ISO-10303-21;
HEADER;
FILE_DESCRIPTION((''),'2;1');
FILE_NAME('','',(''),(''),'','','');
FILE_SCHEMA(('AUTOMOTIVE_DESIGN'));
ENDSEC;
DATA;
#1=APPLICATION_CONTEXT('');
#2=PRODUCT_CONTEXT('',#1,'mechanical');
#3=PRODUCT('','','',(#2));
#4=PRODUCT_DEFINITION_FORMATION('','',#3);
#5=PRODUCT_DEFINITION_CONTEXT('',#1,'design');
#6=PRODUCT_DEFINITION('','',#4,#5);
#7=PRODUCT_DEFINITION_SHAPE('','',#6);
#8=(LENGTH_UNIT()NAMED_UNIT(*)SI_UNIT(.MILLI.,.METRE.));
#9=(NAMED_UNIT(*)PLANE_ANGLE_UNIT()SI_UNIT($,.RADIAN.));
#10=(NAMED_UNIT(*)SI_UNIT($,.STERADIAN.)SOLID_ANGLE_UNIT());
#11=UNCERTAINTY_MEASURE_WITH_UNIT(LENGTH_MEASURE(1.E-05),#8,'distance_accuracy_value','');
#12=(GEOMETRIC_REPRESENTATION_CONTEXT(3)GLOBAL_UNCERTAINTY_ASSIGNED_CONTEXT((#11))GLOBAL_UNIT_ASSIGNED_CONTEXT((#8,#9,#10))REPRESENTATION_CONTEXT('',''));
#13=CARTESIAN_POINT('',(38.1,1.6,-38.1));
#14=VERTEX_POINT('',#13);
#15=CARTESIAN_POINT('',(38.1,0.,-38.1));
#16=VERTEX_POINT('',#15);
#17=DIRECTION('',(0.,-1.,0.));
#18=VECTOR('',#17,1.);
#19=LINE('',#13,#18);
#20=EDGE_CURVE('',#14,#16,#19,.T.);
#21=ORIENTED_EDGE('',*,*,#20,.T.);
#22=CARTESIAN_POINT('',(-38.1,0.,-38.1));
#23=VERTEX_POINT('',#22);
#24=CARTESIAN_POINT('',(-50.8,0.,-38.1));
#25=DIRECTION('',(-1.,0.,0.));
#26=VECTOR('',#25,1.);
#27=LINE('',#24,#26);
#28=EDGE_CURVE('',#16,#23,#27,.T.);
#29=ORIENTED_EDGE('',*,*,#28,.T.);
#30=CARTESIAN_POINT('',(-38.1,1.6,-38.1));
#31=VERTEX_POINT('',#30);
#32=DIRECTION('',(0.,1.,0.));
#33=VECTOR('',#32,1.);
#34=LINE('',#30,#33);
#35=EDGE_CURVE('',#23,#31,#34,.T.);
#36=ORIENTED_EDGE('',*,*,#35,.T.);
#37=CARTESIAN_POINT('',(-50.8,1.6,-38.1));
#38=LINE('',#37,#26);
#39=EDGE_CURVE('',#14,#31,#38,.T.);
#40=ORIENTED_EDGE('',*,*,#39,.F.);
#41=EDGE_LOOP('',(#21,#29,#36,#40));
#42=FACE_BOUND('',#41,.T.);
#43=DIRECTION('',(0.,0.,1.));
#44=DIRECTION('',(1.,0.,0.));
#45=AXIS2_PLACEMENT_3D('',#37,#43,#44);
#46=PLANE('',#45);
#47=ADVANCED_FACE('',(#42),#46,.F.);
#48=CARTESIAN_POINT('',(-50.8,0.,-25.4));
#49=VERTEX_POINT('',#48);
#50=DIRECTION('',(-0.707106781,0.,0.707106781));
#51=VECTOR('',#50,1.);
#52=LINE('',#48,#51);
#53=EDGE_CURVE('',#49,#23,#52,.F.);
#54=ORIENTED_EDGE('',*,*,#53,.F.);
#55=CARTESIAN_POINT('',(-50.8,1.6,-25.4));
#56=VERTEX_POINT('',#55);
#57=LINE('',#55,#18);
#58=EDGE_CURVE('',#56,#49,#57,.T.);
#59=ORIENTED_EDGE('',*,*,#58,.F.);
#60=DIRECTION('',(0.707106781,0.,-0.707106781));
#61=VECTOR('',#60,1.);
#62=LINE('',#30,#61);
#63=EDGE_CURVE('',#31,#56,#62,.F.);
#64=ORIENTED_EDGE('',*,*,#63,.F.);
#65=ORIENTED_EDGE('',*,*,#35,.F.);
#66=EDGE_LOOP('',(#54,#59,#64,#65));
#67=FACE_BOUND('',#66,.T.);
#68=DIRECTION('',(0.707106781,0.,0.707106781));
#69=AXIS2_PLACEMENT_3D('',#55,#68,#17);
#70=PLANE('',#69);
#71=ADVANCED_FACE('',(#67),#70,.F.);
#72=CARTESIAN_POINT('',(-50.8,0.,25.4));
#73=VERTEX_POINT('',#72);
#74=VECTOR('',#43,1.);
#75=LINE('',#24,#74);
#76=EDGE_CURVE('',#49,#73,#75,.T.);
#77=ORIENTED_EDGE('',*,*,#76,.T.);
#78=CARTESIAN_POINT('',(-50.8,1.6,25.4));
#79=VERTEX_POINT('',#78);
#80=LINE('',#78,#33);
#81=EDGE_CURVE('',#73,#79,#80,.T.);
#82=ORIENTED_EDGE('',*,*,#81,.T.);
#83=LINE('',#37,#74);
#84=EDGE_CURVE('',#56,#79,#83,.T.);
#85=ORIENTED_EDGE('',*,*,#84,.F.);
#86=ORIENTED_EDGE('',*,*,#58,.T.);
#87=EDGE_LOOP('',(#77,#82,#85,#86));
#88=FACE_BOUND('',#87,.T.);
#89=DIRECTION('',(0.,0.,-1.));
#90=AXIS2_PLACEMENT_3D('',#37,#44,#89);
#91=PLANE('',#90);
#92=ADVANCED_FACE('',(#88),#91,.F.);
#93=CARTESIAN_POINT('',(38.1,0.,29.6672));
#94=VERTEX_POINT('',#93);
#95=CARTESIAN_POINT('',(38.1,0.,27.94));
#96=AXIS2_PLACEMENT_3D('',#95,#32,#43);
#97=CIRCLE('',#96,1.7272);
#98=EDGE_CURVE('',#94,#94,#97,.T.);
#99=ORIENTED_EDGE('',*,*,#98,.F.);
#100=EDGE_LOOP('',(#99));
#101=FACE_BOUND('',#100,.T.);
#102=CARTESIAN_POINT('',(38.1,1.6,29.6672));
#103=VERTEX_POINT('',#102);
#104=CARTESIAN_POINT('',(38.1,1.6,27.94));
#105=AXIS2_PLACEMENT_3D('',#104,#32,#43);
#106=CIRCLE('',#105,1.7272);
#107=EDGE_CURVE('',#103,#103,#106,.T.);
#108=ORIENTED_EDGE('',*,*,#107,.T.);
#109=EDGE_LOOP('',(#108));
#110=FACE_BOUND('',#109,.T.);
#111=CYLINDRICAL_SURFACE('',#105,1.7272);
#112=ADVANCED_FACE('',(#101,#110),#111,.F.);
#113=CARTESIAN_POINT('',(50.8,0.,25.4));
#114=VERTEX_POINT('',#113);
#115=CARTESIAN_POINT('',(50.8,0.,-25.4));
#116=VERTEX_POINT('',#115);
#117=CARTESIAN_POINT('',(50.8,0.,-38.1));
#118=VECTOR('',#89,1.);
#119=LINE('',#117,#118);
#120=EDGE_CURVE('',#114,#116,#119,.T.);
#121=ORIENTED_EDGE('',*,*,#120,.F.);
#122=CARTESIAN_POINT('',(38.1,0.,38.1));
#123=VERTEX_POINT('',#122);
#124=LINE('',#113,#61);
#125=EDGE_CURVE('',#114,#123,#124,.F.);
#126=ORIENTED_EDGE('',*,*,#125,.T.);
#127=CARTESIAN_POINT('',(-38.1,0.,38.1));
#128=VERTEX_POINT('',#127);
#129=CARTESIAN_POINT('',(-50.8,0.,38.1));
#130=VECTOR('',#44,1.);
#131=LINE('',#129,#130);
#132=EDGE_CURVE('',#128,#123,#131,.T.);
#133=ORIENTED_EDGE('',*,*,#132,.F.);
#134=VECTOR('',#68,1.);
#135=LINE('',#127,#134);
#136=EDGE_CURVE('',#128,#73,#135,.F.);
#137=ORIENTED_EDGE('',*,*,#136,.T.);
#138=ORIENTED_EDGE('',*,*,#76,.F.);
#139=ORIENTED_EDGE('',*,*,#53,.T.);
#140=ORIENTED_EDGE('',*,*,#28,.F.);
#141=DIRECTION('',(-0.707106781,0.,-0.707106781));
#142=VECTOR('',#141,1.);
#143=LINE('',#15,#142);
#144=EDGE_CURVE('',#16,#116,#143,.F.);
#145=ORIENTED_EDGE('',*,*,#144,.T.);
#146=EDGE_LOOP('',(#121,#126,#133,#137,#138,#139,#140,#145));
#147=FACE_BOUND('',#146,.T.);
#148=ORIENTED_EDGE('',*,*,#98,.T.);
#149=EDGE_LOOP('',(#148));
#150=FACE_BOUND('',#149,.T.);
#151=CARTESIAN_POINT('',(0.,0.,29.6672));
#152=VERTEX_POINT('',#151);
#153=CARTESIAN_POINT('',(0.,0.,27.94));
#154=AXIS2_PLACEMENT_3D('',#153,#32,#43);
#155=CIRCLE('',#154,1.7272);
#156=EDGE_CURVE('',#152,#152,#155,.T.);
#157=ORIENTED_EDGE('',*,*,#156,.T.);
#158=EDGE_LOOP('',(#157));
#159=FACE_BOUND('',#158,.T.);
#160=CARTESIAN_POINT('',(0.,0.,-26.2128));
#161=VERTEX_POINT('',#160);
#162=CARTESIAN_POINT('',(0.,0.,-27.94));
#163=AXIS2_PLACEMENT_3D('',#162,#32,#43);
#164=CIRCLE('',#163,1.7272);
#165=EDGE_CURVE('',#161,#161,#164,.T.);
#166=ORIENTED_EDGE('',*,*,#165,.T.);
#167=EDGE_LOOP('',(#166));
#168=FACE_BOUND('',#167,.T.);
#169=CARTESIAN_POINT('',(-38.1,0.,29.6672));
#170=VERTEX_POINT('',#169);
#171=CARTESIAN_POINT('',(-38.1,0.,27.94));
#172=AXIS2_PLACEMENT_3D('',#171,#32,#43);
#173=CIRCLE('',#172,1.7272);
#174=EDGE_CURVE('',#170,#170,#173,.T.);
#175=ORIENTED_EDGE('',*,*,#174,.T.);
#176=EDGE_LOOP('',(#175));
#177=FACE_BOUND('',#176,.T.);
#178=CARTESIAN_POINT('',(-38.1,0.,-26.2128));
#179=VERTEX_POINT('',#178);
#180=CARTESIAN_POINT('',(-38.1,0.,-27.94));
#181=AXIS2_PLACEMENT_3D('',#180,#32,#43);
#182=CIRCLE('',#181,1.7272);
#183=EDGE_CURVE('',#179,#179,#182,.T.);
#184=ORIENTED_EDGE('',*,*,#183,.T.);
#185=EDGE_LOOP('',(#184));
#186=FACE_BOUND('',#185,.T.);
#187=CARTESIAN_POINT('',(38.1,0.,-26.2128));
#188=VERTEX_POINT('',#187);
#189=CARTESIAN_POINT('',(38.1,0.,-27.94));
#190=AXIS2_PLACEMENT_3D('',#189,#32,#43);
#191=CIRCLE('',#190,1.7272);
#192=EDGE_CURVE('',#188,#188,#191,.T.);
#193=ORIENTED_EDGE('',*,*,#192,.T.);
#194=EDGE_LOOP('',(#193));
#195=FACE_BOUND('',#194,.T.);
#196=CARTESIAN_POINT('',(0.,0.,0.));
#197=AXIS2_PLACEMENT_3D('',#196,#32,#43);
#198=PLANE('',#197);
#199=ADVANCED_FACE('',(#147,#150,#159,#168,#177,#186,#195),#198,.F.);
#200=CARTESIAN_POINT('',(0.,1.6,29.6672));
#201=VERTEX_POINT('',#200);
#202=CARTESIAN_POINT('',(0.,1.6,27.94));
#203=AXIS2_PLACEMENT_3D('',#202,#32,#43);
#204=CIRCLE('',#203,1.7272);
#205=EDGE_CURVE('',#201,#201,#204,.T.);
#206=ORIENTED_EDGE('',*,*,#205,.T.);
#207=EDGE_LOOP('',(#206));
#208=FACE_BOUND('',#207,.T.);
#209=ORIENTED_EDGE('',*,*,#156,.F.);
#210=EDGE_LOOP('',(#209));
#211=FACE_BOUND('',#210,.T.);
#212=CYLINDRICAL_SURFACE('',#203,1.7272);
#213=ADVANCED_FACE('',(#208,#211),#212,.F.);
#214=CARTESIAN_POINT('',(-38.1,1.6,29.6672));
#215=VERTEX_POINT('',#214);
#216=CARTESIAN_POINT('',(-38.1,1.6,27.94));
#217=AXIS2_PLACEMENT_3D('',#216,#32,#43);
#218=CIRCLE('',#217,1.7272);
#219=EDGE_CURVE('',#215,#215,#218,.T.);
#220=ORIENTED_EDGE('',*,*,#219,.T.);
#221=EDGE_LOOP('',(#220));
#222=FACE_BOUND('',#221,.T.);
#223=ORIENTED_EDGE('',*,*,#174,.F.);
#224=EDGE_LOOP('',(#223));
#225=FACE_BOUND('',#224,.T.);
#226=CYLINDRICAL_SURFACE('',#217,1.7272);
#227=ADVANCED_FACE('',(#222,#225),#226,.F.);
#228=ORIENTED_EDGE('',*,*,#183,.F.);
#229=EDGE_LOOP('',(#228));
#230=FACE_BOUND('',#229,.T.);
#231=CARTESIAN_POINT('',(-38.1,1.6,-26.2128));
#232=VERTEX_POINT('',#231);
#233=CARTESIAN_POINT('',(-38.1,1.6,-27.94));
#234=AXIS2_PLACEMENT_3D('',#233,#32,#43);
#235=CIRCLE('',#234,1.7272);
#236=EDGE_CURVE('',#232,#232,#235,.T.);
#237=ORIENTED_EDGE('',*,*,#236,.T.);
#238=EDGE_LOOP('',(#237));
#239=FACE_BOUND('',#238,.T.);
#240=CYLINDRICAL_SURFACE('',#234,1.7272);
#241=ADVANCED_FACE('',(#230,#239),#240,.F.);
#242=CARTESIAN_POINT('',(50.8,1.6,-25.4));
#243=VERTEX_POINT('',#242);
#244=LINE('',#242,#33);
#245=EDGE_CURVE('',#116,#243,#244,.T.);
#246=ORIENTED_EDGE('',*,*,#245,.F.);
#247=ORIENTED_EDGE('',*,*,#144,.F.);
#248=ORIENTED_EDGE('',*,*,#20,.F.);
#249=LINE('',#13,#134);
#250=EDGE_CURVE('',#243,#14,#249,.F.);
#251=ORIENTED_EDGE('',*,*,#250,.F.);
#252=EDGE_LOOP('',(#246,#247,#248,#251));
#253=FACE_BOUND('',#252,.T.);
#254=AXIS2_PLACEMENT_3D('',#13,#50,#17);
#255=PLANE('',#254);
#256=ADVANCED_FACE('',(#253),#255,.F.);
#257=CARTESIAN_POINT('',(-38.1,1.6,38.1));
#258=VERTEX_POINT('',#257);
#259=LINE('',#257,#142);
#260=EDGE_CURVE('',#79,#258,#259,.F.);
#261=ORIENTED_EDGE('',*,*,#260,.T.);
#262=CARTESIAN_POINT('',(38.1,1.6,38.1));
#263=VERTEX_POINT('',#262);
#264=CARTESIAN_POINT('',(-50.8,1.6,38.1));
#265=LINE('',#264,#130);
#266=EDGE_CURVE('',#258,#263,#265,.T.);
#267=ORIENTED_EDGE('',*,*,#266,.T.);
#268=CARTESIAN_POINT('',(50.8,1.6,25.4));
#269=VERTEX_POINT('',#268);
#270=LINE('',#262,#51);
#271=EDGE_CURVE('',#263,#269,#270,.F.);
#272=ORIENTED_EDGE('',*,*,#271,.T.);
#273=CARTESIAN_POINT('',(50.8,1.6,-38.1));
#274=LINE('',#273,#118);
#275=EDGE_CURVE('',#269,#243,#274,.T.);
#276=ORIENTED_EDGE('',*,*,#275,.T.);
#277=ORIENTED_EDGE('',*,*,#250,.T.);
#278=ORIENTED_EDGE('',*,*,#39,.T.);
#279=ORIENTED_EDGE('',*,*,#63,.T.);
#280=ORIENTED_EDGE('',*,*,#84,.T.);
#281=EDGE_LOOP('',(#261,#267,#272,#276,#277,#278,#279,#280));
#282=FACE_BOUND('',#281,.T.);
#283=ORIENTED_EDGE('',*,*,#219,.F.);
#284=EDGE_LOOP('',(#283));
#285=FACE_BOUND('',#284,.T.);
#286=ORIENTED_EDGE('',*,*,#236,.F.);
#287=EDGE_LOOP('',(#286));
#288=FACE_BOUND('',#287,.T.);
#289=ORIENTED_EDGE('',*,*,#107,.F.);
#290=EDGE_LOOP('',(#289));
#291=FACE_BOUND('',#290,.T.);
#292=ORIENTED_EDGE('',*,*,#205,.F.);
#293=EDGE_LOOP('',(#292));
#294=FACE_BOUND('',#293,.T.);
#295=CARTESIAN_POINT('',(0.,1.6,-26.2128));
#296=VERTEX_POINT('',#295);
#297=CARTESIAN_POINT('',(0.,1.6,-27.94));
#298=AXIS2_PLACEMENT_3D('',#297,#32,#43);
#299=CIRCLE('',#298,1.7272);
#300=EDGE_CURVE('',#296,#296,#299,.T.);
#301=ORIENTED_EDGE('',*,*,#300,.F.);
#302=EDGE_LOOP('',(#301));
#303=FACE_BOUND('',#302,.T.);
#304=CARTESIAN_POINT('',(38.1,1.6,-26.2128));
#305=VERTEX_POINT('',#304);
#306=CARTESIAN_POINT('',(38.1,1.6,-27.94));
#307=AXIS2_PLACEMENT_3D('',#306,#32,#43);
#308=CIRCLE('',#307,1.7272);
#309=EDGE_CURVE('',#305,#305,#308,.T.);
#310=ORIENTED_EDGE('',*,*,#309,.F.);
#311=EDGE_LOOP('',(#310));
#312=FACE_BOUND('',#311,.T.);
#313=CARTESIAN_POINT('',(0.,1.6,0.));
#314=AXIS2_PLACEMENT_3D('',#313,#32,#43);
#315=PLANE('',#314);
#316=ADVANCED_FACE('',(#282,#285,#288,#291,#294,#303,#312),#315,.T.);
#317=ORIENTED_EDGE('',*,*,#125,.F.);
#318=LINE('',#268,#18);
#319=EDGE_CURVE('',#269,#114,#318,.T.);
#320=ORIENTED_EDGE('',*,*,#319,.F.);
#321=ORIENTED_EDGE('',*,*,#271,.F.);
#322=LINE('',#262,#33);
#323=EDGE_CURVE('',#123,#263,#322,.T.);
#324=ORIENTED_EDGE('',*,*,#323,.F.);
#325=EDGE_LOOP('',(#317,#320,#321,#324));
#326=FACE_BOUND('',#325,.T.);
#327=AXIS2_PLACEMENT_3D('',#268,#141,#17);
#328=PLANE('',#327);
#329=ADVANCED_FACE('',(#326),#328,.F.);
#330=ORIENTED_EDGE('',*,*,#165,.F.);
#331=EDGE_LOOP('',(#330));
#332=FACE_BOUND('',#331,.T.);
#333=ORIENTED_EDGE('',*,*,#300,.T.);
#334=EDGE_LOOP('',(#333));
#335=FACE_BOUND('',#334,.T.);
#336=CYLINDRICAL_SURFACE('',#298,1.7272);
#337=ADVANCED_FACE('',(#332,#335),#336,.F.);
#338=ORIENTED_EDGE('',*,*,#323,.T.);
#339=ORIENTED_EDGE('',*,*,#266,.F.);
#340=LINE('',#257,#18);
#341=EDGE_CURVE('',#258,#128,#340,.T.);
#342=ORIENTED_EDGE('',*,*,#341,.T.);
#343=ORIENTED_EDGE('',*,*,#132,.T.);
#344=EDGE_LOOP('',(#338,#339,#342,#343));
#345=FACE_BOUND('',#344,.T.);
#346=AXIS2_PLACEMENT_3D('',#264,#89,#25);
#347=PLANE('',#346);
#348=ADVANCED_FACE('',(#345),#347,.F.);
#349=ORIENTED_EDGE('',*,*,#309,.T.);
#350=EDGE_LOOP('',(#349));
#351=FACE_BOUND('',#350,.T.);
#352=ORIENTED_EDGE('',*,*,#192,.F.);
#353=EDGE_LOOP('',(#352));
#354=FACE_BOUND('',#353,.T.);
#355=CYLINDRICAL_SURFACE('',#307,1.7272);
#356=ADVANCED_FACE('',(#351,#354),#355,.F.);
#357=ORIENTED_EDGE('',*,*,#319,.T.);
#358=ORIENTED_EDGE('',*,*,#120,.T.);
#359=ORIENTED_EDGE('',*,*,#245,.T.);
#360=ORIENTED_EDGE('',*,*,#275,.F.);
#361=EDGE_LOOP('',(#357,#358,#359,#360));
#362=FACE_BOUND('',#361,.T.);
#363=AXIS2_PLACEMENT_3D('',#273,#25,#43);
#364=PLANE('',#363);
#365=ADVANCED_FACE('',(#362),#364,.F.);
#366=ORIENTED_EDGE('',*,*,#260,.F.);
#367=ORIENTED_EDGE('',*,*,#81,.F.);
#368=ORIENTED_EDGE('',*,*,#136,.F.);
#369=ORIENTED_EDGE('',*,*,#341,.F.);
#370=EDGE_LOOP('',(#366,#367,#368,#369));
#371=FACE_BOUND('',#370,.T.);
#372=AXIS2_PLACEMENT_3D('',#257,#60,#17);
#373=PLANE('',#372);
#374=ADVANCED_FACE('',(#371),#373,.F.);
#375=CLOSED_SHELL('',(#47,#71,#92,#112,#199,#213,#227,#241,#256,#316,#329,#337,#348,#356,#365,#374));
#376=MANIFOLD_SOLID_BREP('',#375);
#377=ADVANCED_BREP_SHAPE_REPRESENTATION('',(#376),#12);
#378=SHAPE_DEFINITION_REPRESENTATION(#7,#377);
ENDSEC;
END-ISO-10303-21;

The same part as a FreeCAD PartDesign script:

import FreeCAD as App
import Part
import Sketcher

V = App.Vector
Q = App.Units.Quantity


def edges_at(feature, points):
    """Names of the edges that pass closest to the given points."""
    edges = feature.Shape.Edges
    near = lambda p: min(range(len(edges)), key=lambda i: edges[i].distToShape(Part.Vertex(*p))[0])
    return sorted({f"Edge{near(p) + 1}" for p in points})


def add_polygon(sketch, points):
    """Adds a closed chain of lines whose ends are joined by coincident constraints."""
    first, n = sketch.GeometryCount, len(points)
    for a, b in zip(points, points[1:] + points[:1]):
        sketch.addGeometry(Part.LineSegment(App.Vector(*a, 0), App.Vector(*b, 0)), False)
    for i in range(n):
        sketch.addConstraint(Sketcher.Constraint("Coincident", first + i, 2, first + (i + 1) % n, 1))

doc = App.newDocument("Part")
params = doc.addObject("Spreadsheet::Sheet", "Params")
for row, (alias, value) in enumerate([
    ("sketch1_width", "4 in"),
    ("sketch1_height", "3 in"),
    ("pad1_length", "1.6 mm"),
    ("sketch2_diameter", "0.136 in"),
    ("hole_diameter", "0.136 in"),
    ("chamfer_size", "0.5 in"),
], start=1):
    params.set(f"A{row}", alias)
    params.set(f"B{row}", "=" + value)
    params.setAlias(f"B{row}", alias)

body = doc.addObject("PartDesign::Body", "Body")

# Sketch on XZ plane
sketch1 = body.newObject("Sketcher::SketchObject", "Sketch")
sketch1.AttachmentSupport = (doc.getObject("XZ_Plane"), [""])
sketch1.MapMode = "FlatFace"
add_polygon(sketch1, [(-51, -38), (-51, 38), (51, 38), (51, -38)])  # lines 0-3
sketch1.addConstraint(Sketcher.Constraint("Vertical", 0))
sketch1.addConstraint(Sketcher.Constraint("Horizontal", 1))
sketch1.addConstraint(Sketcher.Constraint("Vertical", 2))
sketch1.addConstraint(Sketcher.Constraint("Horizontal", 3))
sketch1.addConstraint(Sketcher.Constraint("Symmetric", 0, 2, 2, 2, -1, 1))
sketch1.addConstraint(Sketcher.Constraint("DistanceX", 1, 1, 1, 2, Q("4 in")))
sketch1.addConstraint(Sketcher.Constraint("DistanceY", 0, 1, 0, 2, Q("3 in")))
sketch1.setExpression("Constraints[9]", "Params.sketch1_width")
sketch1.setExpression("Constraints[10]", "Params.sketch1_height")
pad1 = body.newObject("PartDesign::Pad", "Pad")
pad1.Profile = sketch1
pad1.setExpression("Length", "Params.pad1_length")
pad1.Reversed = True

# Sketch on XZ plane
sketch2 = body.newObject("Sketcher::SketchObject", "Sketch001")
sketch2.AttachmentSupport = (doc.getObject("XZ_Plane"), [""])
sketch2.MapMode = "FlatFace"
sketch2.AttachmentOffset = App.Placement(V(0, 0, -1.6), App.Rotation())
sketch2.addGeometry(Part.Circle(V(38.1, 27.9, 0), V(0, 0, 1), 1.7), False)
sketch2.addGeometry(Part.Circle(V(-38.1, 27.9, 0), V(0, 0, 1), 1.7), False)
sketch2.addGeometry(Part.Circle(V(0, 27.9, 0), V(0, 0, 1), 1.7), False)
sketch2.addGeometry(Part.Circle(V(38.1, -27.9, 0), V(0, 0, 1), 1.7), False)
sketch2.addGeometry(Part.Circle(V(0, -27.9, 0), V(0, 0, 1), 1.7), False)
sketch2.addGeometry(Part.Circle(V(-38.1, -27.9, 0), V(0, 0, 1), 1.7), False)
sketch2.addConstraint(Sketcher.Constraint("Equal", 0, 1))
sketch2.addConstraint(Sketcher.Constraint("Equal", 1, 2))
sketch2.addConstraint(Sketcher.Constraint("Equal", 2, 3))
sketch2.addConstraint(Sketcher.Constraint("Equal", 3, 4))
sketch2.addConstraint(Sketcher.Constraint("Equal", 4, 5))
sketch2.addConstraint(Sketcher.Constraint("Symmetric", 1, 3, 3, 3, -1, 1))
sketch2.addConstraint(Sketcher.Constraint("Symmetric", 2, 3, 4, 3, -1, 1))
sketch2.addConstraint(Sketcher.Constraint("Symmetric", 0, 3, 5, 3, -1, 1))
sketch2.addConstraint(Sketcher.Constraint("Symmetric", 0, 3, 1, 3, -2))
sketch2.addConstraint(Sketcher.Constraint("PointOnObject", 2, 3, -2))
sketch2.addConstraint(Sketcher.Constraint("Horizontal", 1, 3, 2, 3))
sketch2.addConstraint(Sketcher.Constraint("Diameter", 0, Q("0.136 in")))
sketch2.addConstraint(Sketcher.Constraint("DistanceX", 1, 3, 0, 3, Q("3 in")))
sketch2.addConstraint(Sketcher.Constraint("DistanceY", -1, 1, 0, 3, Q("1.1 in")))
sketch2.setExpression("Constraints[11]", "Params.sketch2_diameter")
doc.recompute()
hole = body.newObject("PartDesign::Hole", "Hole")
hole.Profile = sketch2
hole.ThreadType = "None"
hole.setExpression("Diameter", "Params.hole_diameter")
hole.DepthType = "ThroughAll"
hole.Reversed = True
doc.recompute()

chamfer = body.newObject("PartDesign::Chamfer", "Chamfer")
chamfer.Base = (hole, edges_at(hole, [
    (-50.8, 0.8, -38.1),
    (50.8, 0.8, -38.1),
    (50.8, 0.8, 38.1),
    (-50.8, 0.8, 38.1),
]))
chamfer.setExpression("Size", "Params.chamfer_size")

doc.recompute()
